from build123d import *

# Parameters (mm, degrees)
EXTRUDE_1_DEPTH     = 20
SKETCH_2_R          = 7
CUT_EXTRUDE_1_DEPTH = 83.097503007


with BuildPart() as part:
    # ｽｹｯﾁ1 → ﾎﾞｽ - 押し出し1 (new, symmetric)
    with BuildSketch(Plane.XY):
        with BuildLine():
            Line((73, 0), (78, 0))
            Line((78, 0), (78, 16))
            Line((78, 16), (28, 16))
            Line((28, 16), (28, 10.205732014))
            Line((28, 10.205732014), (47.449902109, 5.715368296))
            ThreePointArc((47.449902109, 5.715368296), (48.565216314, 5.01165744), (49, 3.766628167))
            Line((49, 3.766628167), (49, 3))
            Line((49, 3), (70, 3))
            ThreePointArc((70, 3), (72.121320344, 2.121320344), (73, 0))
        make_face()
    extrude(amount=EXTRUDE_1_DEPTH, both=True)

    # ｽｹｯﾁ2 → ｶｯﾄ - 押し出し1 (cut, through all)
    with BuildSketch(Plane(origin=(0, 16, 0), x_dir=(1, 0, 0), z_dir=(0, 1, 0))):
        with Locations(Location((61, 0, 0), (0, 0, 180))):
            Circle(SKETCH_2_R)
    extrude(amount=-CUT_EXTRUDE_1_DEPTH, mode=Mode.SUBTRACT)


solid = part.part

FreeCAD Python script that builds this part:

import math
import FreeCAD as App
import Part
import Sketcher

V = App.Vector
Q = App.Units.Quantity

doc = App.newDocument("Part")
params = doc.addObject("Spreadsheet::Sheet", "Params")
for row, (alias, value) in enumerate([
    ("sketch1_radius", "2 mm"),
    ("sketch1_radius2", "3 mm"),
    ("sketch1_width", "5 mm"),
    ("sketch1_width2", "50 mm"),
    ("sketch1_width3", "21 mm"),
    ("pad1_length", "40 mm"),
    ("sketch2_diameter", "14 mm"),
], start=1):
    params.set(f"A{row}", alias)
    params.set(f"B{row}", "=" + value)
    params.setAlias(f"B{row}", alias)

body = doc.addObject("PartDesign::Body", "Body")

sketch1 = body.newObject("Sketcher::SketchObject", "Sketch")
sketch1.AttachmentSupport = (doc.getObject("XY_Plane"), [""])
sketch1.MapMode = "FlatFace"
sketch1.addGeometry([
    Part.LineSegment(V(73, 0, 0), V(78, 0, 0)),
    Part.LineSegment(V(78, 0, 0), V(78, 16, 0)),
    Part.LineSegment(V(78, 16, 0), V(28, 16, 0)),
    Part.LineSegment(V(28, 16, 0), V(28, 10.2, 0)),
    Part.LineSegment(V(28, 10.2, 0), V(47.4, 5.7, 0)),
    Part.ArcOfCircle(Part.Circle(V(47, 3.8, 0), V(0, 0, 1), 2), math.radians(0), math.radians(77)),
    Part.LineSegment(V(49, 3.8, 0), V(49, 3, 0)),
    Part.LineSegment(V(49, 3, 0), V(70, 3, 0)),
    Part.ArcOfCircle(Part.Circle(V(70, 0, 0), V(0, 0, 1), 3), math.radians(0), math.radians(90)),
], False)
sketch1.addConstraint([
    Sketcher.Constraint("Coincident", 0, 2, 1, 1),
    Sketcher.Constraint("Coincident", 1, 2, 2, 1),
    Sketcher.Constraint("Coincident", 2, 2, 3, 1),
    Sketcher.Constraint("Coincident", 3, 2, 4, 1),
    Sketcher.Constraint("Tangent", 4, 2, 5, 2),
    Sketcher.Constraint("Tangent", 5, 1, 6, 1),
    Sketcher.Constraint("Coincident", 6, 2, 7, 1),
    Sketcher.Constraint("Tangent", 7, 2, 8, 2),
    Sketcher.Constraint("Coincident", 8, 1, 0, 1),
    Sketcher.Constraint("Horizontal", 0),
    Sketcher.Constraint("Vertical", 1),
    Sketcher.Constraint("Horizontal", 2),
    Sketcher.Constraint("Vertical", 3),
    Sketcher.Constraint("Vertical", 6),
    Sketcher.Constraint("Horizontal", 7),
    Sketcher.Constraint("PointOnObject", 8, 3, -1),
    Sketcher.Constraint("PointOnObject", 0, 2, -1),
    Sketcher.Constraint("Radius", 5, Q("2 mm")),
    Sketcher.Constraint("Radius", 8, Q("3 mm")),
    Sketcher.Constraint("DistanceX", 0, 1, 0, 2, Q("5 mm")),
    Sketcher.Constraint("DistanceX", 2, 2, 2, 1, Q("50 mm")),
    Sketcher.Constraint("DistanceX", 7, 1, 7, 2, Q("21 mm")),
    Sketcher.Constraint("DistanceY", 1, 1, 1, 2, Q("16 mm")),
    Sketcher.Constraint("Angle", 4, Q("-13 deg")),
    Sketcher.Constraint("DistanceX", -1, 1, 5, 3, Q("47 mm")),
    Sketcher.Constraint("DistanceY", 6, 2, 6, 1, Q("0.766628 mm")),
])
sketch1.setExpression("Constraints[17]", "Params.sketch1_radius")
sketch1.setExpression("Constraints[18]", "Params.sketch1_radius2")
sketch1.setExpression("Constraints[19]", "Params.sketch1_width")
sketch1.setExpression("Constraints[20]", "Params.sketch1_width2")
sketch1.setExpression("Constraints[21]", "Params.sketch1_width3")
pad1 = body.newObject("PartDesign::Pad", "Pad")
pad1.Profile = sketch1
pad1.setExpression("Length", "Params.pad1_length")
pad1.Midplane = True

sketch2 = body.newObject("Sketcher::SketchObject", "Sketch001")
sketch2.AttachmentSupport = (doc.getObject("XZ_Plane"), [""])
sketch2.MapMode = "FlatFace"
sketch2.AttachmentOffset = App.Placement(V(0, 0, -16), App.Rotation())
sketch2.addGeometry(Part.Circle(V(61, 0, 0), V(0, 0, 1), 7), False)
sketch2.addConstraint([
    Sketcher.Constraint("PointOnObject", 0, 3, -1),
    Sketcher.Constraint("Diameter", 0, Q("14 mm")),
    Sketcher.Constraint("DistanceX", -1, 1, 0, 3, Q("61 mm")),
])
sketch2.setExpression("Constraints[1]", "Params.sketch2_diameter")
pocket1 = body.newObject("PartDesign::Pocket", "Pocket")
pocket1.Profile = sketch2
pocket1.Type = "ThroughAll"
pocket1.Reversed = True

doc.recompute()
